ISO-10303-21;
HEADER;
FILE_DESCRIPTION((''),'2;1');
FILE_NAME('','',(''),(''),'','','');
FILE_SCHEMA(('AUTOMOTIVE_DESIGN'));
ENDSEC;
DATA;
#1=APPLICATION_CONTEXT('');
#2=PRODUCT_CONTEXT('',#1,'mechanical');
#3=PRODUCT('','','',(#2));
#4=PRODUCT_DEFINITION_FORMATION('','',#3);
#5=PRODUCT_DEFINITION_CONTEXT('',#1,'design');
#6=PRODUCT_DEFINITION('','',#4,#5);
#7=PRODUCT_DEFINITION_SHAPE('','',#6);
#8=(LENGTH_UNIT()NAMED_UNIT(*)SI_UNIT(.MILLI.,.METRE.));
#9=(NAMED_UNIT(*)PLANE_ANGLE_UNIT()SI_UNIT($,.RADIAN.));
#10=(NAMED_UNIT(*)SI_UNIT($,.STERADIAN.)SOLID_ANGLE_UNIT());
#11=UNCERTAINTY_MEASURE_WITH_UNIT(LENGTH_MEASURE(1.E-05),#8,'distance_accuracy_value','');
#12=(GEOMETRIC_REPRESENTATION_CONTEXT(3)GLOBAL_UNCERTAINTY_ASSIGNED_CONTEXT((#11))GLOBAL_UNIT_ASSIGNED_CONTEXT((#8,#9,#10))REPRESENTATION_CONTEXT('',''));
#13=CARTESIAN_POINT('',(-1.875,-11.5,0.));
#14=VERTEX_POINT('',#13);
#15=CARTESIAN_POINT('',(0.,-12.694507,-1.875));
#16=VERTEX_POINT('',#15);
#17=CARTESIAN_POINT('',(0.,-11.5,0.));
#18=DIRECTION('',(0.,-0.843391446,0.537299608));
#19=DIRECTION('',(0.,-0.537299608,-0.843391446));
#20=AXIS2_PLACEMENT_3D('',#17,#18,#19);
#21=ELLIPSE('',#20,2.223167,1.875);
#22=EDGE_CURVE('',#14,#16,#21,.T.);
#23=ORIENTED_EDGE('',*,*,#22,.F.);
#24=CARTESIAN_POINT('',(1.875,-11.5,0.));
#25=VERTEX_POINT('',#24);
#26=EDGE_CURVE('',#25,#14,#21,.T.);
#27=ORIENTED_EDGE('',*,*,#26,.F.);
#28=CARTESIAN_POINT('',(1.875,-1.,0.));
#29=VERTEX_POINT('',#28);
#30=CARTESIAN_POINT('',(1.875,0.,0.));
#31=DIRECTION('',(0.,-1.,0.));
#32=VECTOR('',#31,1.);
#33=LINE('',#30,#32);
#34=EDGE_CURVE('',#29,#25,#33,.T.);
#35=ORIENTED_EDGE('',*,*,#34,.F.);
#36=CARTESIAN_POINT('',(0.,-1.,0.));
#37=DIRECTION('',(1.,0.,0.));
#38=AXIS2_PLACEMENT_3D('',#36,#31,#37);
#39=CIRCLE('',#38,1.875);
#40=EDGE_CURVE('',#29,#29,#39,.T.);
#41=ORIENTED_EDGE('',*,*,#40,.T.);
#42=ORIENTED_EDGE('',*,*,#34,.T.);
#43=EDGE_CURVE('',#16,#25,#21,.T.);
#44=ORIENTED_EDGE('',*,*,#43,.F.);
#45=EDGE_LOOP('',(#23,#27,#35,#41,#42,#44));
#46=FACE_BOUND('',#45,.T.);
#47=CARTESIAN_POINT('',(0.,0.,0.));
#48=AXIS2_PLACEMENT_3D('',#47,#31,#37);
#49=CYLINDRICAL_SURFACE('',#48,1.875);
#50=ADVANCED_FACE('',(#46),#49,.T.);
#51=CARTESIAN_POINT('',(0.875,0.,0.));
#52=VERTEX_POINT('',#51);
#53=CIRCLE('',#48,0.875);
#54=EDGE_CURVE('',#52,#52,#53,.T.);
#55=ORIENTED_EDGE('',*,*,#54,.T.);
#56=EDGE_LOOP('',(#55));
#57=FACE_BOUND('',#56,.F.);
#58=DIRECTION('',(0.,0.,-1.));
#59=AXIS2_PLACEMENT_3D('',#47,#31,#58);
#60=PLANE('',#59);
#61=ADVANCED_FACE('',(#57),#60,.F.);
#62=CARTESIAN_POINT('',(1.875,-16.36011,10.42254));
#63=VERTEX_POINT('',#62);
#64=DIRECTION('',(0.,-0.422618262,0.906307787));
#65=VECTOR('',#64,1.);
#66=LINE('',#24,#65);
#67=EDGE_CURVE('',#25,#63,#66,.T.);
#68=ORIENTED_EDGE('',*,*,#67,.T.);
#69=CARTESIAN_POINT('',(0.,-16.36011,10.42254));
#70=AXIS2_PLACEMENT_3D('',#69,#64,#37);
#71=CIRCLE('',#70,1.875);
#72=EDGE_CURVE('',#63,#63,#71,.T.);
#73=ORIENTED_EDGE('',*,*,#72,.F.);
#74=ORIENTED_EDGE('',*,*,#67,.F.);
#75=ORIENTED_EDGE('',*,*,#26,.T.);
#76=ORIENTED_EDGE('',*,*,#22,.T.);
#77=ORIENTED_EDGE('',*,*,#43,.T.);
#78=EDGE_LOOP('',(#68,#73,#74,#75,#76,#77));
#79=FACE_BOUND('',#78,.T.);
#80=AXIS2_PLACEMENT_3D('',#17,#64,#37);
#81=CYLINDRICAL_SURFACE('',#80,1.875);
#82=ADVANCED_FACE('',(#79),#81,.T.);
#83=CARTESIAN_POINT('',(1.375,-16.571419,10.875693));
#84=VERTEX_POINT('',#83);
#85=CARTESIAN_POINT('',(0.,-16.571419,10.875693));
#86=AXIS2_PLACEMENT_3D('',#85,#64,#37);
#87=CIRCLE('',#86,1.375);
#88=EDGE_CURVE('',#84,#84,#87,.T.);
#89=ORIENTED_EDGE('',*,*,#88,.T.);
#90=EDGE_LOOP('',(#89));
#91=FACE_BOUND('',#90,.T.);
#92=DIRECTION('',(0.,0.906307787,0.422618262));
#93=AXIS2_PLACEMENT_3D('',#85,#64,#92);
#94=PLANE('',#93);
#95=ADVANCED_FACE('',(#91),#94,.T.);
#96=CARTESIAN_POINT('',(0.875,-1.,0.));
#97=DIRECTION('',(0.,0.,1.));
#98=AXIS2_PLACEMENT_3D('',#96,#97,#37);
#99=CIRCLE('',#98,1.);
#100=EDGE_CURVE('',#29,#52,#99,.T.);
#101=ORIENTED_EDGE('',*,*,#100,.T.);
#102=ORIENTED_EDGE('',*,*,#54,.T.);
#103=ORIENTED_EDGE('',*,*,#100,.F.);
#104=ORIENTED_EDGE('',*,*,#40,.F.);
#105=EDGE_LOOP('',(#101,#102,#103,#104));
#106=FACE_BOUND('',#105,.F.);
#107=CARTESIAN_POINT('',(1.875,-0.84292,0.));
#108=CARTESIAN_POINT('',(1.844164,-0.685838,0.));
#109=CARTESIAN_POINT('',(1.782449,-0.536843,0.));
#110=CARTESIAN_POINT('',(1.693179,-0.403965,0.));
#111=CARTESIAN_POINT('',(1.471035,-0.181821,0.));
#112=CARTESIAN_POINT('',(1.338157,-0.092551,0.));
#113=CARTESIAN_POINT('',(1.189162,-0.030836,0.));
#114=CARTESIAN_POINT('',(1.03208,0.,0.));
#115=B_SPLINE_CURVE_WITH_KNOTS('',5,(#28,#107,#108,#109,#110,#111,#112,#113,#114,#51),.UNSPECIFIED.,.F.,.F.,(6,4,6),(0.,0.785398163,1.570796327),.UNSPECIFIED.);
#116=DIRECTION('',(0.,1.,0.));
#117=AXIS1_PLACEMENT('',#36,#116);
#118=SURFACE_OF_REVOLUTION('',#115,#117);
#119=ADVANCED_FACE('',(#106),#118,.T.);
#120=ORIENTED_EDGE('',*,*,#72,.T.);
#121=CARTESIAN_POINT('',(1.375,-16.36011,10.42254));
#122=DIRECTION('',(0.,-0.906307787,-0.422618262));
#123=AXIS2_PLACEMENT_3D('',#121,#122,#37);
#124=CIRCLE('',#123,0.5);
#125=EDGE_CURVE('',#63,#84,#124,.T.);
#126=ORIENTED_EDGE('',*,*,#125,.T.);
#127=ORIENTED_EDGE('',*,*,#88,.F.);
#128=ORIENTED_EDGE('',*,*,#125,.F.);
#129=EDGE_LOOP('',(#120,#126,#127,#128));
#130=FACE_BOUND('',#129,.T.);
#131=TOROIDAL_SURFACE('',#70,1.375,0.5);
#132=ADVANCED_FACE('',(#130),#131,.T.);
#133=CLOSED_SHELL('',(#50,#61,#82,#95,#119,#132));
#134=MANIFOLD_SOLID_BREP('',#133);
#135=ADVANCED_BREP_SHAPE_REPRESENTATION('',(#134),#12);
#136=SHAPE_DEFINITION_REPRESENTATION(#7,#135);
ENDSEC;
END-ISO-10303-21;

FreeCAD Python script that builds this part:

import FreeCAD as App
import Part
import Sketcher
from FreeCAD import Vector
Q = App.Units.Quantity


def edges_at(feature, points):
    """Names of the edges that pass closest to the given points."""
    edges = feature.Shape.Edges
    near = lambda p: min(range(len(edges)), key=lambda i: edges[i].distToShape(Part.Vertex(*p))[0])
    return sorted({f"Edge{near(p) + 1}" for p in points})

doc = App.newDocument("Part")
params = doc.addObject("Spreadsheet::Sheet", "Params")
for row, (alias, value) in enumerate([
    ("sketch1_diameter", "3.75 mm"),
    ("sketch2_length", "12 mm"),
    ("sketch2_width", "11.5 mm"),
    ("fillet_radius", "1 mm"),
    ("fillet2_radius", "0.5 mm"),
], start=1):
    params.set(f"A{row}", alias)
    params.set(f"B{row}", "=" + value)
    params.setAlias(f"B{row}", alias)

body = doc.addObject("PartDesign::Body", "Body")

# Sketch on XZ plane
sketch1 = body.newObject("Sketcher::SketchObject", "Sketch")
sketch1.AttachmentSupport = (doc.getObject("XZ_Plane"), [""])
sketch1.MapMode = "FlatFace"
sketch1.addGeometry(Part.Circle(Vector(0, 0, 0), Vector(0, 0, 1), 1.875), False)
sketch1.addConstraint(Sketcher.Constraint("Coincident", 0, 3, -1, 1))
sketch1.addConstraint(Sketcher.Constraint("Diameter", 0, 3.75))
sketch1.setExpression("Constraints[1]", "Params.sketch1_diameter")

# Sketch on YZ plane
sketch2 = body.newObject("Sketcher::SketchObject", "Sketch001")
sketch2.AttachmentSupport = (doc.getObject("YZ_Plane"), [""])
sketch2.MapMode = "FlatFace"
sketch2.addGeometry(Part.LineSegment(Vector(0, 0, 0), Vector(-11.5, 0, 0)), False)
sketch2.addGeometry(Part.LineSegment(Vector(-11.5, 0, 0), Vector(-16.571419, 10.875693, 0)), False)
sketch2.addConstraint(Sketcher.Constraint("Coincident", 0, 2, 1, 1))
sketch2.addConstraint(Sketcher.Constraint("Horizontal", 0))
sketch2.addConstraint(Sketcher.Constraint("Coincident", 0, 1, -1, 1))
sketch2.addConstraint(Sketcher.Constraint("Angle", 1, Q("115 deg")))
sketch2.addConstraint(Sketcher.Constraint("Distance", 1, 12.0))
sketch2.addConstraint(Sketcher.Constraint("DistanceX", 0, 2, 0, 1, 11.5))
sketch2.setExpression("Constraints[4]", "Params.sketch2_length")
sketch2.setExpression("Constraints[5]", "Params.sketch2_width")
doc.recompute()

additivepipe = body.newObject("PartDesign::AdditivePipe", "AdditivePipe")
additivepipe.Profile = sketch1
additivepipe.Spine = (sketch2, ["Edge1", "Edge2"])
additivepipe.Transition = "Right corner"
doc.recompute()

fillet = body.newObject("PartDesign::Fillet", "Fillet")
fillet.Base = (additivepipe, edges_at(additivepipe, [(-1.875, 0, 0)]))
fillet.setExpression("Radius", "Params.fillet_radius")
doc.recompute()

fillet2 = body.newObject("PartDesign::Fillet", "Fillet001")
fillet2.Base = (fillet, edges_at(fillet, [(-1.875, -16.571, 10.876)]))
fillet2.setExpression("Radius", "Params.fillet2_radius")

doc.recompute()
